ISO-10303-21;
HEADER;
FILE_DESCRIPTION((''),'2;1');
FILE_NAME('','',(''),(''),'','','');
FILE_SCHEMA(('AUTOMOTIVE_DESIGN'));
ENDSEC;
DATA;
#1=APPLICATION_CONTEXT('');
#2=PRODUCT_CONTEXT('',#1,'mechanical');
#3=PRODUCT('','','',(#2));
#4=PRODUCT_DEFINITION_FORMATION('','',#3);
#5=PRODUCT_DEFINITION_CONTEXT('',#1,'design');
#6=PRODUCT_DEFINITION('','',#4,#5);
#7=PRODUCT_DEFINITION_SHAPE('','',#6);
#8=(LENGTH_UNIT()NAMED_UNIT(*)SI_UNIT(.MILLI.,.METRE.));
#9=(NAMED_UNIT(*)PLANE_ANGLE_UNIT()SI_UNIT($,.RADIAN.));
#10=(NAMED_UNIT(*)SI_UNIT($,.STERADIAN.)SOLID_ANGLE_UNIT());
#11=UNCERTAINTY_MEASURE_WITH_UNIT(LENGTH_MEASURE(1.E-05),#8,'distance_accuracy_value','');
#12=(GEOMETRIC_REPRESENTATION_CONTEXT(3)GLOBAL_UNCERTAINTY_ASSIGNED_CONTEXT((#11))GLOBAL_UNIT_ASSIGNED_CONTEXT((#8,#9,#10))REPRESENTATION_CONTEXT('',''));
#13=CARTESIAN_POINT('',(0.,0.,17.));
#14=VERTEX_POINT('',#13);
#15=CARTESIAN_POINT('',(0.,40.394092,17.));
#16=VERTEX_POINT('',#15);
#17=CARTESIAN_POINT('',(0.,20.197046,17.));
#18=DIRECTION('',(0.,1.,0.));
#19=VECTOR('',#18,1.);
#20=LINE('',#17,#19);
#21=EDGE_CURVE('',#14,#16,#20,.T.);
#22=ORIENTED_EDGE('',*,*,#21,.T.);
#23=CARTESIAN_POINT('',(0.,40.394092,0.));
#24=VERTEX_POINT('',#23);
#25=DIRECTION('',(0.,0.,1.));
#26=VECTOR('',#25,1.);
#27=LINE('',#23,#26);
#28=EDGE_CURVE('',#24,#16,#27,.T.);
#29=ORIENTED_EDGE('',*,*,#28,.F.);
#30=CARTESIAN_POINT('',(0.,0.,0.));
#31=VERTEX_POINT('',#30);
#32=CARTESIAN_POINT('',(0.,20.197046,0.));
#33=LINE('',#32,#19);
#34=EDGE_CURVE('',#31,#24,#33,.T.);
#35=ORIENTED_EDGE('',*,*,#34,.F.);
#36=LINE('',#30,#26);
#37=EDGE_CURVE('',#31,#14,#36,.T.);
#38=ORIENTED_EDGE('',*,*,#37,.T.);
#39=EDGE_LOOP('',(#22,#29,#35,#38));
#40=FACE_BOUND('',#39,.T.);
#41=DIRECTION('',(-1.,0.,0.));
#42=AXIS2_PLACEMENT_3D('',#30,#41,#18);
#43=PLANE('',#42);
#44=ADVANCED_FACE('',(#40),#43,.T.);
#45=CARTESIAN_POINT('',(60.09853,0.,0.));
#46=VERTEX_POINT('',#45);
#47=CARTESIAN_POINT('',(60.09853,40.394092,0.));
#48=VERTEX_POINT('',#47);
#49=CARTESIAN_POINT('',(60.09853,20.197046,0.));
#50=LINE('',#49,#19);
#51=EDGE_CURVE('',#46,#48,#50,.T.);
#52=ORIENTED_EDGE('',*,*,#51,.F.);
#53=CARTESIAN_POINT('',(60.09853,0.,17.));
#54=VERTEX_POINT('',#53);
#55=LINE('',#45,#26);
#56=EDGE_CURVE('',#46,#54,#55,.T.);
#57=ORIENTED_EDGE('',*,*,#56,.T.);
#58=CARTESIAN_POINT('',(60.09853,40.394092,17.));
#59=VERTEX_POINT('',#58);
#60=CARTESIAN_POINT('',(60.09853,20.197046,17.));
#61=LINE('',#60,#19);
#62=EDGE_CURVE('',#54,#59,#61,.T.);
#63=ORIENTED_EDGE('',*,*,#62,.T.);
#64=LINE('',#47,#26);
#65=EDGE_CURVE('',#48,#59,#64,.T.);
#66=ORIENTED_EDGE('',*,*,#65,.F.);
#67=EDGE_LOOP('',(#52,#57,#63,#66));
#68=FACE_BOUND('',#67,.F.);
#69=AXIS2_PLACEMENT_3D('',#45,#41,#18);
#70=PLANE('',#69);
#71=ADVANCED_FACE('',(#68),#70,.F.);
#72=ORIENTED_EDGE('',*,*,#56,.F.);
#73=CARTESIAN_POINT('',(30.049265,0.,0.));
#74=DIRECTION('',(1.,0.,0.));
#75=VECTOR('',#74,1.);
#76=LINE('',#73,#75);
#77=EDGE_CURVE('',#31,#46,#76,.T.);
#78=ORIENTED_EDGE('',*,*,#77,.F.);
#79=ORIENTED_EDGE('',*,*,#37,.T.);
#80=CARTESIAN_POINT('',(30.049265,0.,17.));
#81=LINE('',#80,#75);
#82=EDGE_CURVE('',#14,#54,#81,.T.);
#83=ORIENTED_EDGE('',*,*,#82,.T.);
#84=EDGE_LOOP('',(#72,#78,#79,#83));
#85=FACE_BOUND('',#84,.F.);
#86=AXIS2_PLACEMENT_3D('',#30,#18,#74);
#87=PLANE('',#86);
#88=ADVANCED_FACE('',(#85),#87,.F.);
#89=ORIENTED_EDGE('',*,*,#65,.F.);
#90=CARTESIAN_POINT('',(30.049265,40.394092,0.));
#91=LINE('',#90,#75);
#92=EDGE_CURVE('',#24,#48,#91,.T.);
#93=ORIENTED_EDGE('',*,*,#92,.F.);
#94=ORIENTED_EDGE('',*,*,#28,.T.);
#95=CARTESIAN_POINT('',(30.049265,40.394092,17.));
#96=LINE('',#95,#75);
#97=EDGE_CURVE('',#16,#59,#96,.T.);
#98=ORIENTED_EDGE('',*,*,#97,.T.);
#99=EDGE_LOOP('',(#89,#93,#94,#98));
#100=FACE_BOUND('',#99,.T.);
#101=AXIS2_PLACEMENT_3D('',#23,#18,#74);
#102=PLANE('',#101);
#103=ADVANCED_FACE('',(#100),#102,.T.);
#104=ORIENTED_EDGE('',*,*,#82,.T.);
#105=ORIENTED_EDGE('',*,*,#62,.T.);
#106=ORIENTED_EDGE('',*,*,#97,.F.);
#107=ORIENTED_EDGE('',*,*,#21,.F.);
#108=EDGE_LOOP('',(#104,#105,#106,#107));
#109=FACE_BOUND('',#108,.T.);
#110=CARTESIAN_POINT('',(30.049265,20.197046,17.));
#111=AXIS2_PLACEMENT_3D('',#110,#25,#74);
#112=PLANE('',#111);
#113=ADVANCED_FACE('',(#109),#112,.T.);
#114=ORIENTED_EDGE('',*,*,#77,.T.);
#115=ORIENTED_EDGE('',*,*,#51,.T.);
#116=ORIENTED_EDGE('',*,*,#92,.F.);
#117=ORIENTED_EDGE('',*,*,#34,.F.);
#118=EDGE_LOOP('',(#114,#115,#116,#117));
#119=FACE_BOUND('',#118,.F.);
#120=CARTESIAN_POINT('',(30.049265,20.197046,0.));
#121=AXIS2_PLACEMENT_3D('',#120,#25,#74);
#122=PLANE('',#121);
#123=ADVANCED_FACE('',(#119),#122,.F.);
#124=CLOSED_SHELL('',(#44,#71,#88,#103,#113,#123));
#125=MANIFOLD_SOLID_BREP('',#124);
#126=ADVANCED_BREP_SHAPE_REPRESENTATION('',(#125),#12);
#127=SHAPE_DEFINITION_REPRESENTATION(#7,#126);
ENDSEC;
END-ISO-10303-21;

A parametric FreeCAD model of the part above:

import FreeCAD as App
import Part
import Sketcher
from FreeCAD import Vector


def add_polygon(sketch, points):
    """Adds a closed chain of lines whose ends are joined by coincident constraints."""
    first, n = sketch.GeometryCount, len(points)
    for a, b in zip(points, points[1:] + points[:1]):
        sketch.addGeometry(Part.LineSegment(App.Vector(*a, 0), App.Vector(*b, 0)), False)
    for i in range(n):
        sketch.addConstraint(Sketcher.Constraint("Coincident", first + i, 2, first + (i + 1) % n, 1))

doc = App.newDocument("Part")
body = doc.addObject("PartDesign::Body", "Body")

sketch1 = body.newObject("Sketcher::SketchObject", "Sketch")
sketch1.AttachmentSupport = (doc.getObject("XY_Plane"), [""])
sketch1.MapMode = "FlatFace"
add_polygon(sketch1, [(0, 40), (0, 0), (60, 0), (60, 40)])
sketch1.addConstraint([
    Sketcher.Constraint("Vertical", 0),
    Sketcher.Constraint("Horizontal", 1),
    Sketcher.Constraint("Vertical", 2),
    Sketcher.Constraint("Horizontal", 3),
    Sketcher.Constraint("Coincident", 0, 2, -1, 1),
    Sketcher.Constraint("DistanceX", 1, 1, 1, 2, 60.09853),
    Sketcher.Constraint("DistanceY", 0, 2, 0, 1, 40.394093),
])
pad1 = body.newObject("PartDesign::Pad", "Pad")
pad1.Profile = sketch1
pad1.Length = 17

doc.recompute()
